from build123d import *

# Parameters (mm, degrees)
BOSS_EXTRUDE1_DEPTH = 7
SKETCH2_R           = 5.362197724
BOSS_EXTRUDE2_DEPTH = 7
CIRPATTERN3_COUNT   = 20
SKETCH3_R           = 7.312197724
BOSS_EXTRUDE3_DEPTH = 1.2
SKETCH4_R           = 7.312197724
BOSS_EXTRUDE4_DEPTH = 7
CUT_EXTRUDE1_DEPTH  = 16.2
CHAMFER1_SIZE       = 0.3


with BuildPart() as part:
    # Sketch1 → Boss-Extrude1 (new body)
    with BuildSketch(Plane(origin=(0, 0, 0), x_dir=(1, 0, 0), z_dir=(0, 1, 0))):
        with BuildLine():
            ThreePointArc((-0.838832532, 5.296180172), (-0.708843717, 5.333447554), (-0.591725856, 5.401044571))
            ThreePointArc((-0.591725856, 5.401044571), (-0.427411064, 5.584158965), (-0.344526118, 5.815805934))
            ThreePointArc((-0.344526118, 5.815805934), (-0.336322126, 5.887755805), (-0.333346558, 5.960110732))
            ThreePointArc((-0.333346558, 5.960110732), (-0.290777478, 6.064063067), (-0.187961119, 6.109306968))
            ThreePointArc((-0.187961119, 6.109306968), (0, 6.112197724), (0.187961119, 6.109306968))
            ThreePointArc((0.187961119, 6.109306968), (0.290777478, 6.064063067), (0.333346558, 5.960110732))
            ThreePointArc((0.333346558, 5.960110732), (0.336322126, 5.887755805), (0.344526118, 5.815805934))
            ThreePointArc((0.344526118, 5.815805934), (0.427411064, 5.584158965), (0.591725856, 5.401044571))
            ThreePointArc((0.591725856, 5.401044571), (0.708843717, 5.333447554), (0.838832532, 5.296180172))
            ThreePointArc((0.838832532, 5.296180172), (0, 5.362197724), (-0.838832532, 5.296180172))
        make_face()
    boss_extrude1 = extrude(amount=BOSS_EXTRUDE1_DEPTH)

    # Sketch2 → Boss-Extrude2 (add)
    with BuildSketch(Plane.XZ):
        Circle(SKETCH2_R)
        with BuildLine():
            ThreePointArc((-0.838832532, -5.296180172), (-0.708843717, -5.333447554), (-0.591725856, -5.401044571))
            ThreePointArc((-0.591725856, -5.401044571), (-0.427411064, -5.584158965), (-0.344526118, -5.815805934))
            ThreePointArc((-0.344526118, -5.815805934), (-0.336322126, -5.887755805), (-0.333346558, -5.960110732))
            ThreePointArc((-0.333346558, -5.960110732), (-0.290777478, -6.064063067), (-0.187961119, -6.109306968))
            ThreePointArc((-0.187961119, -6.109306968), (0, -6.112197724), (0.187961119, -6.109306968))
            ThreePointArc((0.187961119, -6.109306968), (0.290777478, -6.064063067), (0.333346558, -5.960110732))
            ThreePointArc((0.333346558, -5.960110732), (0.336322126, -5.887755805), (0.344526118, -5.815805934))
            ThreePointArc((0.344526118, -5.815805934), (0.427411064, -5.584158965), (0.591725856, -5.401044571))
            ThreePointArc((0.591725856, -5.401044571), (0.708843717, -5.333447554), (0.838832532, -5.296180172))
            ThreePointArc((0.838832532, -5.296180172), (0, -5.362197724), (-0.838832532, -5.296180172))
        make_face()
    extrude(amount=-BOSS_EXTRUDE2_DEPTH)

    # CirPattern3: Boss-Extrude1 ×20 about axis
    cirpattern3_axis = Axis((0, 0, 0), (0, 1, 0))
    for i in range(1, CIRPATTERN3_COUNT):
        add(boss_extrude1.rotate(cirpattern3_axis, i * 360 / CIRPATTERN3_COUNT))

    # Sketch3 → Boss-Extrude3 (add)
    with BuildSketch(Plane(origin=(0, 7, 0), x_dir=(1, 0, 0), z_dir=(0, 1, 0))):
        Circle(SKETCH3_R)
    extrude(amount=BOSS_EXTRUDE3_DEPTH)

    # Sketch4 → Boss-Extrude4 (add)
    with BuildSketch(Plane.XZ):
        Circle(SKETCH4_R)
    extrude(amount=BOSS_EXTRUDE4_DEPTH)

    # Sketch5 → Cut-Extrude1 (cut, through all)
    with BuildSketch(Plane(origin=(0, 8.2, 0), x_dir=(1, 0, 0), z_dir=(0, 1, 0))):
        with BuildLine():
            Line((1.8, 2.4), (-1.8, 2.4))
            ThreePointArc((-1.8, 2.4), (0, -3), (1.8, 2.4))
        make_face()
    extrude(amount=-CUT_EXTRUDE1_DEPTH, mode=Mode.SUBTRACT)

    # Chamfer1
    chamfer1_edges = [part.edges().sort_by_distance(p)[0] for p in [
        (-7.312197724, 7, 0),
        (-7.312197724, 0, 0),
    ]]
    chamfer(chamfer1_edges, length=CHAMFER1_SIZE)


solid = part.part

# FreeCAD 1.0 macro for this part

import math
import FreeCAD as App
import Part
import Sketcher

V = App.Vector


def edges_at(feature, points):
    """Names of the edges that pass closest to the given points."""
    edges = feature.Shape.Edges
    near = lambda p: min(range(len(edges)), key=lambda i: edges[i].distToShape(Part.Vertex(*p))[0])
    return sorted({f"Edge{near(p) + 1}" for p in points})

doc = App.newDocument("Part")
body = doc.addObject("PartDesign::Body", "Body")

sketch1 = body.newObject("Sketcher::SketchObject", "Sketch")
sketch1.AttachmentSupport = (doc.getObject("XZ_Plane"), [""])
sketch1.MapMode = "FlatFace"
sketch1.addGeometry([
    Part.ArcOfCircle(Part.Circle(V(-0.925654, -5.844347, 0), V(0, 0, 1), 0.555), math.radians(53.01028), math.radians(81.000001)),
    Part.ArcOfCircle(Part.Circle(V(0, 0, 0), V(0, 0, 1), 5.362198), math.radians(-99), math.radians(-81)),
    Part.ArcOfCircle(Part.Circle(V(0.925654, -5.844347, 0), V(0, 0, 1), 0.555), math.radians(98.999999), math.radians(126.98972)),
    Part.ArcOfCircle(Part.Circle(V(0.975913, -5.911069, 0), V(0, 0, 1), 0.638533), math.radians(126.989719), math.radians(171.419995)),
    Part.ArcOfCircle(Part.Circle(V(1.333334, -5.964996, 0), V(0, 0, 1), 1), math.radians(171.419994), math.radians(179.720083)),
    Part.ArcOfCircle(Part.Circle(V(0.183348, -5.959378, 0), V(0, 0, 1), 0.15), math.radians(-88.237773), math.radians(-0.279918)),
    Part.ArcOfCircle(Part.Circle(V(0, -0.000001, 0), V(0, 0, 1), 6.112197), math.radians(-91.762227), math.radians(-88.237773)),
    Part.ArcOfCircle(Part.Circle(V(-0.183348, -5.959378, 0), V(0, 0, 1), 0.15), math.radians(-179.720082), math.radians(-91.762227)),
    Part.ArcOfCircle(Part.Circle(V(-1.333334, -5.964996, 0), V(0, 0, 1), 1), math.radians(0.279917), math.radians(8.580006)),
    Part.ArcOfCircle(Part.Circle(V(-0.975913, -5.911069, 0), V(0, 0, 1), 0.638533), math.radians(8.580005), math.radians(53.010281)),
], False)
sketch1.addConstraint([
    Sketcher.Constraint("Tangent", 0, 2, 1, 1),
    Sketcher.Constraint("Tangent", 1, 2, 2, 1),
    Sketcher.Constraint("Tangent", 2, 2, 3, 1),
    Sketcher.Constraint("Tangent", 3, 2, 4, 1),
    Sketcher.Constraint("Tangent", 4, 2, 5, 2),
    Sketcher.Constraint("Tangent", 5, 1, 6, 2),
    Sketcher.Constraint("Tangent", 6, 1, 7, 2),
    Sketcher.Constraint("Tangent", 7, 1, 8, 1),
    Sketcher.Constraint("Tangent", 8, 2, 9, 1),
    Sketcher.Constraint("Tangent", 9, 2, 0, 1),
    Sketcher.Constraint("Coincident", 1, 3, -1, 1),
    Sketcher.Constraint("Coincident", 6, 3, -1, 1),
    Sketcher.Constraint("Equal", 0, 2),
    Sketcher.Constraint("Equal", 5, 7),
    Sketcher.Constraint("Equal", 4, 8),
    Sketcher.Constraint("Equal", 3, 9),
    Sketcher.Constraint("Symmetric", 4, 3, 8, 3, -2),
    Sketcher.Constraint("Horizontal", 0, 3, 2, 3),
    Sketcher.Constraint("Radius", 4, 1.0),
    Sketcher.Constraint("Radius", 5, 0.15),
    Sketcher.Constraint("Radius", 0, 0.555),
    Sketcher.Constraint("Radius", 1, 5.362198),
    Sketcher.Constraint("Radius", 3, 0.638533),
    Sketcher.Constraint("Radius", 6, 6.112197),
    Sketcher.Constraint("DistanceX", 8, 3, 0, 2, 0.494502),
    Sketcher.Constraint("DistanceX", 3, 2, 2, 2, 0.2472),
    Sketcher.Constraint("DistanceY", 5, 1, 3, 2, 0.293501),
])
pad1 = body.newObject("PartDesign::Pad", "Pad")
pad1.Profile = sketch1
pad1.Length = 7
pad1.Reversed = True

sketch2 = body.newObject("Sketcher::SketchObject", "Sketch001")
sketch2.AttachmentSupport = (doc.getObject("XZ_Plane"), [""])
sketch2.MapMode = "FlatFace"
sketch2.addGeometry([
    Part.ArcOfCircle(Part.Circle(V(-0.925654, -5.844347, 0), V(0, 0, 1), 0.555), math.radians(53.01028), math.radians(81.000001)),
    Part.ArcOfCircle(Part.Circle(V(-0.975913, -5.911069, 0), V(0, 0, 1), 0.638533), math.radians(8.580005), math.radians(53.010281)),
    Part.ArcOfCircle(Part.Circle(V(-1.333334, -5.964996, 0), V(0, 0, 1), 1), math.radians(0.279917), math.radians(8.580006)),
    Part.ArcOfCircle(Part.Circle(V(-0.183348, -5.959378, 0), V(0, 0, 1), 0.15), math.radians(-179.720082), math.radians(-91.762227)),
    Part.ArcOfCircle(Part.Circle(V(0, -0.000001, 0), V(0, 0, 1), 6.112197), math.radians(-91.762227), math.radians(-88.237773)),
    Part.ArcOfCircle(Part.Circle(V(0.183348, -5.959378, 0), V(0, 0, 1), 0.15), math.radians(-88.237773), math.radians(-0.279918)),
    Part.ArcOfCircle(Part.Circle(V(1.333334, -5.964996, 0), V(0, 0, 1), 1), math.radians(171.419994), math.radians(179.720083)),
    Part.ArcOfCircle(Part.Circle(V(0.975913, -5.911069, 0), V(0, 0, 1), 0.638533), math.radians(126.989719), math.radians(171.419995)),
    Part.ArcOfCircle(Part.Circle(V(0.925654, -5.844347, 0), V(0, 0, 1), 0.555), math.radians(98.999999), math.radians(126.98972)),
    Part.ArcOfCircle(Part.Circle(V(0, 0, 0), V(0, 0, 1), 5.362198), math.radians(-81), math.radians(261)),
], False)
sketch2.addConstraint([
    Sketcher.Constraint("Tangent", 0, 1, 1, 2),
    Sketcher.Constraint("Tangent", 1, 1, 2, 2),
    Sketcher.Constraint("Tangent", 2, 1, 3, 1),
    Sketcher.Constraint("Tangent", 3, 2, 4, 1),
    Sketcher.Constraint("Tangent", 4, 2, 5, 1),
    Sketcher.Constraint("Tangent", 5, 2, 6, 2),
    Sketcher.Constraint("Tangent", 6, 1, 7, 2),
    Sketcher.Constraint("Tangent", 7, 1, 8, 2),
    Sketcher.Constraint("Tangent", 8, 1, 9, 1),
    Sketcher.Constraint("Tangent", 9, 2, 0, 2),
    Sketcher.Constraint("Coincident", 4, 3, -1, 1),
    Sketcher.Constraint("Coincident", 9, 3, -1, 1),
    Sketcher.Constraint("Equal", 3, 5),
    Sketcher.Constraint("Equal", 2, 6),
    Sketcher.Constraint("Equal", 1, 7),
    Sketcher.Constraint("Equal", 0, 8),
    Sketcher.Constraint("Symmetric", 2, 3, 6, 3, -2),
    Sketcher.Constraint("Horizontal", 1, 3, 7, 3),
    Sketcher.Constraint("Radius", 2, 1.0),
    Sketcher.Constraint("Radius", 3, 0.15),
    Sketcher.Constraint("Radius", 0, 0.555),
    Sketcher.Constraint("Radius", 1, 0.638533),
    Sketcher.Constraint("Radius", 4, 6.112197),
    Sketcher.Constraint("Radius", 9, 5.362198),
    Sketcher.Constraint("DistanceX", 0, 1, 1, 1, 0.2472),
    Sketcher.Constraint("DistanceY", 3, 2, 1, 1, 0.293501),
    Sketcher.Constraint("DistanceX", 8, 1, 6, 3, 0.494502),
])
pad2 = body.newObject("PartDesign::Pad", "Pad001")
pad2.Profile = sketch2
pad2.Length = 7
pad2.Reversed = True
doc.recompute()

polarpattern = body.newObject("PartDesign::PolarPattern", "PolarPattern")
polarpattern.Originals = [pad1]
polarpattern.Axis = (doc.getObject("Y_Axis"), [""])
polarpattern.Angle = 360
polarpattern.Occurrences = 20
body.Tip = polarpattern

sketch3 = body.newObject("Sketcher::SketchObject", "Sketch002")
sketch3.AttachmentSupport = (doc.getObject("XZ_Plane"), [""])
sketch3.MapMode = "FlatFace"
sketch3.AttachmentOffset = App.Placement(V(0, 0, -7), App.Rotation())
sketch3.addGeometry(Part.Circle(V(0, 0, 0), V(0, 0, 1), 7.312198), False)
sketch3.addConstraint([
    Sketcher.Constraint("Coincident", 0, 3, -1, 1),
    Sketcher.Constraint("Diameter", 0, 14.624395),
])
pad3 = body.newObject("PartDesign::Pad", "Pad002")
pad3.Profile = sketch3
pad3.Length = 1.2
pad3.Reversed = True

sketch4 = body.newObject("Sketcher::SketchObject", "Sketch003")
sketch4.AttachmentSupport = (doc.getObject("XZ_Plane"), [""])
sketch4.MapMode = "FlatFace"
sketch4.addGeometry(Part.Circle(V(0, 0, 0), V(0, 0, 1), 7.312198), False)
sketch4.addConstraint([
    Sketcher.Constraint("Coincident", 0, 3, -1, 1),
    Sketcher.Constraint("Diameter", 0, 14.624395),
])
pad4 = body.newObject("PartDesign::Pad", "Pad003")
pad4.Profile = sketch4
pad4.Length = 7

sketch5 = body.newObject("Sketcher::SketchObject", "Sketch004")
sketch5.AttachmentSupport = (doc.getObject("XZ_Plane"), [""])
sketch5.MapMode = "FlatFace"
sketch5.AttachmentOffset = App.Placement(V(0, 0, -8.2), App.Rotation())
sketch5.addGeometry([
    Part.LineSegment(V(1.8, -2.4, 0), V(-1.8, -2.4, 0)),
    Part.ArcOfCircle(Part.Circle(V(0, 0, 0), V(0, 0, 1), 3), math.radians(-53.130102), math.radians(233.130102)),
], False)
sketch5.addConstraint([
    Sketcher.Constraint("Coincident", 0, 1, 1, 1),
    Sketcher.Constraint("Coincident", 1, 2, 0, 2),
    Sketcher.Constraint("Horizontal", 0),
    Sketcher.Constraint("Coincident", 1, 3, -1, 1),
    Sketcher.Constraint("Radius", 1, 3.0),
    Sketcher.Constraint("DistanceX", 0, 2, 0, 1, 3.6),
])
pocket1 = body.newObject("PartDesign::Pocket", "Pocket")
pocket1.Profile = sketch5
pocket1.Type = "ThroughAll"
pocket1.Reversed = True
doc.recompute()

chamfer = body.newObject("PartDesign::Chamfer", "Chamfer")
chamfer.Base = (pocket1, edges_at(pocket1, [(-7.312, 7, 0), (-7.312, 0, 0)]))
chamfer.Size = 0.3

doc.recompute()
